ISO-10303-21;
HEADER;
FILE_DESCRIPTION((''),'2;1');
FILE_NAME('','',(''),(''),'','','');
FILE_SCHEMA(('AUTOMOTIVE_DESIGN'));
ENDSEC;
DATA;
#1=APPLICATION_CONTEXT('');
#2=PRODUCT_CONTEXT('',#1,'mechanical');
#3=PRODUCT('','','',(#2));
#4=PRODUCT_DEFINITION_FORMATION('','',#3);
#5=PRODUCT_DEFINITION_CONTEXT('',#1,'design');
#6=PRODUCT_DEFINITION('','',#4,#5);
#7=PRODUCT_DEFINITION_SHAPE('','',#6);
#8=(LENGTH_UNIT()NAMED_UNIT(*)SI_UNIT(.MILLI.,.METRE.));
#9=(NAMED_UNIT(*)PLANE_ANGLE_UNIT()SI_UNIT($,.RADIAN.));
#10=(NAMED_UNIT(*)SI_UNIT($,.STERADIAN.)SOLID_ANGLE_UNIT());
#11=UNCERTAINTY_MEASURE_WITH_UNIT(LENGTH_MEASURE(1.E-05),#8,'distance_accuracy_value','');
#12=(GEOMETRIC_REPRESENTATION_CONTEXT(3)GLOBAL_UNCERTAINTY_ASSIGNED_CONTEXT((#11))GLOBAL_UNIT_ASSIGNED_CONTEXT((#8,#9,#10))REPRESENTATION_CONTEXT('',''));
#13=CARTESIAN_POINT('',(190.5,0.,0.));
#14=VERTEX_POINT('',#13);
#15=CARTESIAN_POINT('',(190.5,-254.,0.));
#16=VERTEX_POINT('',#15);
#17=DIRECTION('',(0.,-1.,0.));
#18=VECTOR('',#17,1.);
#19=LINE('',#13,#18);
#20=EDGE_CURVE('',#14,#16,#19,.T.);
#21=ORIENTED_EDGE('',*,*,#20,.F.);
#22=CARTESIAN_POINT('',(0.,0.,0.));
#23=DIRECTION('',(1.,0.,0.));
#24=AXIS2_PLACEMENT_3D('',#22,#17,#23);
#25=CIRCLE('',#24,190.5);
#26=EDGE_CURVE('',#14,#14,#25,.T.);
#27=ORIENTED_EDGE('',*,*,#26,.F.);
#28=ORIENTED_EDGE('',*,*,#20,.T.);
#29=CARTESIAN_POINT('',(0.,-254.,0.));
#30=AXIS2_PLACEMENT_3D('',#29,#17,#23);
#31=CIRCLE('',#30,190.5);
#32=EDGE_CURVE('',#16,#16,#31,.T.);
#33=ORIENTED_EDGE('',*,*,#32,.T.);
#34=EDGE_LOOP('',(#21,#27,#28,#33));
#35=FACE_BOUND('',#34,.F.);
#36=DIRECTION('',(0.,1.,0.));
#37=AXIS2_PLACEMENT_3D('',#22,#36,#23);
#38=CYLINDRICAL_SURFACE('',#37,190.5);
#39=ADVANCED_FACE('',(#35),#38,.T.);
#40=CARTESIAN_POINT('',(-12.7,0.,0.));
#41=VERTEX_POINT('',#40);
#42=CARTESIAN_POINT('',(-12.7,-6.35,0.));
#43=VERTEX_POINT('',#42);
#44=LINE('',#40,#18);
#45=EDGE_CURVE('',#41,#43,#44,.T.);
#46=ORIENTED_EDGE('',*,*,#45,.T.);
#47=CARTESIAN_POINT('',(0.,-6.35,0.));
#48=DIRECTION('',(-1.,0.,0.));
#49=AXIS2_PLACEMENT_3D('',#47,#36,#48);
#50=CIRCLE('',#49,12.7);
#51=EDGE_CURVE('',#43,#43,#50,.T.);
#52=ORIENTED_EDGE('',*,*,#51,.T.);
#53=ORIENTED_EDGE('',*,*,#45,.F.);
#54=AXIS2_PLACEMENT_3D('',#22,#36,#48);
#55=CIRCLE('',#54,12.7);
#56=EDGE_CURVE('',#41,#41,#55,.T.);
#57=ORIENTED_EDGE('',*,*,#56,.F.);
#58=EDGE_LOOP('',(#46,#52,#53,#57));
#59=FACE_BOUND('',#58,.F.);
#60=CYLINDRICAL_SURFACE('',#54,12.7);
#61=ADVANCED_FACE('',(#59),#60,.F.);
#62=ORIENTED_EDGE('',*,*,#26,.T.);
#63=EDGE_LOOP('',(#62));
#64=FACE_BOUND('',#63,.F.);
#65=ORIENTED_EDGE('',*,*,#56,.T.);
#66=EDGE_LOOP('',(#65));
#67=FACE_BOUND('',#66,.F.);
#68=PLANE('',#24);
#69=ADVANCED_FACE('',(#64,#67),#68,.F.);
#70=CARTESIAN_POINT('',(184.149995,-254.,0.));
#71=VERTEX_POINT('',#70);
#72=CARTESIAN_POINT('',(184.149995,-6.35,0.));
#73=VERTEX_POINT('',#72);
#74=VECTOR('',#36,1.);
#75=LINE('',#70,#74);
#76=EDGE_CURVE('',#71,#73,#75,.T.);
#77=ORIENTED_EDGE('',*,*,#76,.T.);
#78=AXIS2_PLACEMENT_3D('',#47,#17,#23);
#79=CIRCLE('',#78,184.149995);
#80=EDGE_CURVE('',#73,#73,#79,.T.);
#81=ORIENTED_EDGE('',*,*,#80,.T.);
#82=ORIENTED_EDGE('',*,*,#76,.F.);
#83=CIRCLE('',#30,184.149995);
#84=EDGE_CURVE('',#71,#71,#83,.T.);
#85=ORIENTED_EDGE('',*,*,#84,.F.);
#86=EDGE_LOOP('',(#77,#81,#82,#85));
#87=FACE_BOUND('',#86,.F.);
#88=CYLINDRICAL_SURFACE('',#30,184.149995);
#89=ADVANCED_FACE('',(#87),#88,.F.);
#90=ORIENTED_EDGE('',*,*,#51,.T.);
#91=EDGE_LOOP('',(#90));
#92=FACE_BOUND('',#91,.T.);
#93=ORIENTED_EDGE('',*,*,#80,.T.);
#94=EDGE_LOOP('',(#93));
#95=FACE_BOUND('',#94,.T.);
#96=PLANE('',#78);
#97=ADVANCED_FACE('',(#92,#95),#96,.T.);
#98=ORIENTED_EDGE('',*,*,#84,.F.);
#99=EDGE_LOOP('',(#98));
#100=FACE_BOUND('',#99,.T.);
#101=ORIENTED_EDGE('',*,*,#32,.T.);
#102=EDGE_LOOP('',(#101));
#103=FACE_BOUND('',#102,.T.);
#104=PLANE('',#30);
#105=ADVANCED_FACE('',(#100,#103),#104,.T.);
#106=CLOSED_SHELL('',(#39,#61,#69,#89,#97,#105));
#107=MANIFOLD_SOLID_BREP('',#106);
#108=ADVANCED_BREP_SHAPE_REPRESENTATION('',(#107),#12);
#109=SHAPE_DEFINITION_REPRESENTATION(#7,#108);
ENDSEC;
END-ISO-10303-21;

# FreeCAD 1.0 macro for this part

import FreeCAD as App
import Part
import Sketcher

V = App.Vector
Q = App.Units.Quantity

doc = App.newDocument("Part")
body = doc.addObject("PartDesign::Body", "Body")

sketch1 = body.newObject("Sketcher::SketchObject", "Sketch")
sketch1.AttachmentSupport = (doc.getObject("XZ_Plane"), [""])
sketch1.MapMode = "FlatFace"
sketch1.addGeometry(Part.Circle(V(0, 0, 0), V(0, 0, 1), 190), False)
sketch1.addConstraint(Sketcher.Constraint("Coincident", 0, 3, -1, 1))
sketch1.addConstraint(Sketcher.Constraint("Diameter", 0, Q("15 in")))
pad1 = body.newObject("PartDesign::Pad", "Pad")
pad1.Profile = sketch1
pad1.Length = Q("10 in")

sketch2 = body.newObject("Sketcher::SketchObject", "Sketch001")
sketch2.AttachmentSupport = (doc.getObject("XZ_Plane"), [""])
sketch2.MapMode = "FlatFace"
sketch2.AttachmentOffset = App.Placement(V(0, 0, 10 * 25.4), App.Rotation())
sketch2.addGeometry(Part.Circle(V(0, 0, 0), V(0, 0, 1), 184), False)
sketch2.addConstraint(Sketcher.Constraint("Coincident", 0, 3, -1, 1))
sketch2.addConstraint(Sketcher.Constraint("Diameter", 0, 368.29999))
pocket1 = body.newObject("PartDesign::Pocket", "Pocket")
pocket1.Profile = sketch2
pocket1.Length = Q("9.75 in")

sketch3 = body.newObject("Sketcher::SketchObject", "Sketch002")
sketch3.AttachmentSupport = (doc.getObject("XZ_Plane"), [""])
sketch3.MapMode = "FlatFace"
sketch3.addGeometry(Part.Circle(V(0, 0, 0), V(0, 0, 1), 13), False)
sketch3.addConstraint(Sketcher.Constraint("Coincident", 0, 3, -1, 1))
sketch3.addConstraint(Sketcher.Constraint("Diameter", 0, Q("1 in")))
pocket2 = body.newObject("PartDesign::Pocket", "Pocket001")
pocket2.Profile = sketch3
pocket2.Type = "ThroughAll"
pocket2.Reversed = True

doc.recompute()
